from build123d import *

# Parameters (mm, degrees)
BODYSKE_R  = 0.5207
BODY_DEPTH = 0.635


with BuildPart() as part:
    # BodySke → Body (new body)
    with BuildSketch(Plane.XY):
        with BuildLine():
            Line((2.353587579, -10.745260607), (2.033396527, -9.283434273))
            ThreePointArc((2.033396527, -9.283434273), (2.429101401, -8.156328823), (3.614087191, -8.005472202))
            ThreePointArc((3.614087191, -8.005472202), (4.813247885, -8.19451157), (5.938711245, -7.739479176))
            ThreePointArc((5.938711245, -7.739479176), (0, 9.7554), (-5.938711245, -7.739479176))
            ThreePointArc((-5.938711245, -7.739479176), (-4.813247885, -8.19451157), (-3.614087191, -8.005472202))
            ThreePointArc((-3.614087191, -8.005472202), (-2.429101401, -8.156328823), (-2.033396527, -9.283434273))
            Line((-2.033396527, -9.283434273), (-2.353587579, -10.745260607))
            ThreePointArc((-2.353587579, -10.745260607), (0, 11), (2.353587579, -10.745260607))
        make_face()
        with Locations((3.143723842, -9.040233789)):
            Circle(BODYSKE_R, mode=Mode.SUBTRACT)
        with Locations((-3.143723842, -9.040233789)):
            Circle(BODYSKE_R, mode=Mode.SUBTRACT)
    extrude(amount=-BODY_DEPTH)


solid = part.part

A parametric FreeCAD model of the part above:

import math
import FreeCAD as App
import Part
import Sketcher

V = App.Vector
Q = App.Units.Quantity

doc = App.newDocument("Part")
body = doc.addObject("PartDesign::Body", "Body")

# Sketch on XY plane
sketch1 = body.newObject("Sketcher::SketchObject", "Sketch")
sketch1.AttachmentSupport = (doc.getObject("XY_Plane"), [""])
sketch1.MapMode = "FlatFace"
sketch1.addGeometry([
    Part.LineSegment(V(2, -9.3, 0), V(2.4, -10.7, 0)),  # 0
    Part.ArcOfCircle(Part.Circle(V(0, 0, 0), V(0, 0, 1), 11), math.radians(-78), math.radians(258)),  # 1
    Part.LineSegment(V(-2.4, -10.7, 0), V(-2, -9.3, 0)),  # 2
    Part.ArcOfCircle(Part.Circle(V(-3.1, -9, 0), V(0, 0, 1), 1.1), math.radians(-12), math.radians(114)),  # 3
    Part.ArcOfCircle(Part.Circle(V(-4.6, -5.9, 0), V(0, 0, 1), 2.3), math.radians(-127), math.radians(-66)),  # 4
    Part.ArcOfCircle(Part.Circle(V(0, 0, 0), V(0, 0, 1), 9.8), math.radians(-52), math.radians(232)),  # 5
    Part.ArcOfCircle(Part.Circle(V(4.6, -5.9, 0), V(0, 0, 1), 2.3), math.radians(-114), math.radians(-53)),  # 6
    Part.ArcOfCircle(Part.Circle(V(3.1, -9, 0), V(0, 0, 1), 1.1), math.radians(66), math.radians(192)),  # 7
    Part.Circle(V(3.1, -9, 0), V(0, 0, 1), 0.5),  # 8
    Part.Circle(V(-3.1, -9, 0), V(0, 0, 1), 0.5),  # 9
], False)
sketch1.addConstraint([
    Sketcher.Constraint("Coincident", 0, 2, 1, 1),
    Sketcher.Constraint("Coincident", 1, 2, 2, 1),
    Sketcher.Constraint("Tangent", 2, 2, 3, 1),
    Sketcher.Constraint("Tangent", 3, 2, 4, 2),
    Sketcher.Constraint("Tangent", 4, 1, 5, 2),
    Sketcher.Constraint("Tangent", 5, 1, 6, 2),
    Sketcher.Constraint("Tangent", 6, 1, 7, 1),
    Sketcher.Constraint("Tangent", 7, 2, 0, 1),
    Sketcher.Constraint("Coincident", 1, 3, -1, 1),
    Sketcher.Constraint("Coincident", 5, 3, -1, 1),
    Sketcher.Constraint("Coincident", 8, 3, 7, 3),
    Sketcher.Constraint("Coincident", 9, 3, 3, 3),
    Sketcher.Constraint("Equal", 4, 6),
    Sketcher.Constraint("Equal", 3, 7),
    Sketcher.Constraint("Equal", 8, 9),
    Sketcher.Constraint("Symmetric", 3, 3, 7, 3, -2),
    Sketcher.Constraint("Horizontal", 0, 2, 1, 2),
    Sketcher.Constraint("Diameter", 8, Q("0.041 in")),
    Sketcher.Constraint("Radius", 4, Q("0.0895 in")),
    Sketcher.Constraint("Radius", 1, Q("11 mm")),
    Sketcher.Constraint("Radius", 5, Q("9.7554 mm")),
    Sketcher.Constraint("Radius", 3, Q("1.13665 mm")),
    Sketcher.Constraint("DistanceY", 2, 2, 3, 3, Q("0.2432 mm")),
    Sketcher.Constraint("DistanceX", 3, 2, 1, 2, Q("1.2605 mm")),
    Sketcher.Constraint("DistanceY", 4, 3, -1, 1, Q("5.935949 mm")),
])
pad1 = body.newObject("PartDesign::Pad", "Pad")
pad1.Profile = sketch1
pad1.Length = Q("0.025 in")
pad1.Reversed = True

doc.recompute()
